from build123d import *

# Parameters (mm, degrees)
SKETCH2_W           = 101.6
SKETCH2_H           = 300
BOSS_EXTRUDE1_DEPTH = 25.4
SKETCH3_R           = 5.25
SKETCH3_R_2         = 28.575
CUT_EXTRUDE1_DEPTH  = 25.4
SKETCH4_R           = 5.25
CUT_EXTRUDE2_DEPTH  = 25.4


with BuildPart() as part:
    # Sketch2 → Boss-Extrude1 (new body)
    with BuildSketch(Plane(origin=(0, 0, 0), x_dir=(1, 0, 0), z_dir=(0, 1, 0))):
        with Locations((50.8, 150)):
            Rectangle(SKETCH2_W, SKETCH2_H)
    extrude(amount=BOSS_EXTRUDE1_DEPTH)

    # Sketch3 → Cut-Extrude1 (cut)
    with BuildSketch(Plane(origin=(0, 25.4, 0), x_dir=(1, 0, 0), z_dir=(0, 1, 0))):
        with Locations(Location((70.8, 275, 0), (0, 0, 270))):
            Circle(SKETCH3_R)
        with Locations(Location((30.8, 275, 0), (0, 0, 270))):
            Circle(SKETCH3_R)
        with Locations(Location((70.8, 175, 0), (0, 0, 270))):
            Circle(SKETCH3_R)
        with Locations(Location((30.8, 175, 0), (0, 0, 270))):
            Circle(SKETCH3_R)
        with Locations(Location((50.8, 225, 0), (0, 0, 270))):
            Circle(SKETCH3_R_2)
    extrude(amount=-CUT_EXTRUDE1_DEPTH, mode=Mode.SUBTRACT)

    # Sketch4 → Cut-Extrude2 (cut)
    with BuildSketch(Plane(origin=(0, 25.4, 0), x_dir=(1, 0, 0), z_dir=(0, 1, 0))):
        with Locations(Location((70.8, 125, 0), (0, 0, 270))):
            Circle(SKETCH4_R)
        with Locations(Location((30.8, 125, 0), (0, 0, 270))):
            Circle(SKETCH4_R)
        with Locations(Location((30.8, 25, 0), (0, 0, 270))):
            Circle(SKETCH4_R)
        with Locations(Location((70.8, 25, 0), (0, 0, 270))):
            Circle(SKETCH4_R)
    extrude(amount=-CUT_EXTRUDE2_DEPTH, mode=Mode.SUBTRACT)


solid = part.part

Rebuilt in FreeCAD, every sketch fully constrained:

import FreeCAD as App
import Part
import Sketcher

V = App.Vector
Q = App.Units.Quantity

doc = App.newDocument("Part")
body = doc.addObject("PartDesign::Body", "Body")

sketch1 = body.newObject("Sketcher::SketchObject", "Sketch")
sketch1.AttachmentSupport = (doc.getObject("XZ_Plane"), [""])
sketch1.MapMode = "FlatFace"
sketch1.addGeometry([
    Part.LineSegment(V(0, -300, 0), V(0, 0, 0)),
    Part.LineSegment(V(0, 0, 0), V(102, 0, 0)),
    Part.LineSegment(V(102, 0, 0), V(102, -300, 0)),
    Part.LineSegment(V(102, -300, 0), V(0, -300, 0)),
], False)
sketch1.addConstraint([
    Sketcher.Constraint("Coincident", 0, 2, 1, 1),
    Sketcher.Constraint("Coincident", 1, 2, 2, 1),
    Sketcher.Constraint("Coincident", 2, 2, 3, 1),
    Sketcher.Constraint("Coincident", 3, 2, 0, 1),
    Sketcher.Constraint("Vertical", 0),
    Sketcher.Constraint("Horizontal", 1),
    Sketcher.Constraint("Vertical", 2),
    Sketcher.Constraint("Horizontal", 3),
    Sketcher.Constraint("Coincident", 0, 2, -1, 1),
    Sketcher.Constraint("DistanceX", 1, 1, 1, 2, Q("4 in")),
    Sketcher.Constraint("DistanceY", 0, 1, 0, 2, Q("300 mm")),
])
pad1 = body.newObject("PartDesign::Pad", "Pad")
pad1.Profile = sketch1
pad1.Length = Q("1 in")
pad1.Reversed = True

sketch2 = body.newObject("Sketcher::SketchObject", "Sketch001")
sketch2.AttachmentSupport = (doc.getObject("XZ_Plane"), [""])
sketch2.MapMode = "FlatFace"
sketch2.AttachmentOffset = App.Placement(V(0, 0, -1 * 25.4), App.Rotation())
sketch2.addGeometry([
    Part.Circle(V(71, -275, 0), V(0, 0, 1), 5),
    Part.Circle(V(31, -275, 0), V(0, 0, 1), 5),
    Part.Circle(V(71, -175, 0), V(0, 0, 1), 5),
    Part.Circle(V(31, -175, 0), V(0, 0, 1), 5),
    Part.Circle(V(51, -225, 0), V(0, 0, 1), 29),
], False)
sketch2.addConstraint([
    Sketcher.Constraint("Equal", 0, 1),
    Sketcher.Constraint("Equal", 1, 2),
    Sketcher.Constraint("Equal", 2, 3),
    Sketcher.Constraint("Horizontal", 0, 3, 1, 3),
    Sketcher.Constraint("Horizontal", 2, 3, 3, 3),
    Sketcher.Constraint("Vertical", 0, 3, 2, 3),
    Sketcher.Constraint("Vertical", 1, 3, 3, 3),
    Sketcher.Constraint("Diameter", 4, Q("2.25 in")),
    Sketcher.Constraint("DistanceX", -1, 1, 4, 3, Q("2 in")),
    Sketcher.Constraint("Diameter", 0, Q("10.5 mm")),
    Sketcher.Constraint("DistanceX", -1, 1, 0, 3, Q("70.8 mm")),
    Sketcher.Constraint("DistanceY", 0, 3, -1, 1, Q("275 mm")),
    Sketcher.Constraint("DistanceX", -1, 1, 1, 3, Q("30.8 mm")),
    Sketcher.Constraint("DistanceY", 2, 3, -1, 1, Q("175 mm")),
    Sketcher.Constraint("DistanceY", 4, 3, -1, 1, Q("225 mm")),
])
pocket1 = body.newObject("PartDesign::Pocket", "Pocket")
pocket1.Profile = sketch2
pocket1.Length = Q("1 in")
pocket1.Reversed = True

sketch3 = body.newObject("Sketcher::SketchObject", "Sketch002")
sketch3.AttachmentSupport = (doc.getObject("XZ_Plane"), [""])
sketch3.MapMode = "FlatFace"
sketch3.AttachmentOffset = App.Placement(V(0, 0, -1 * 25.4), App.Rotation())
sketch3.addGeometry([
    Part.Circle(V(71, -125, 0), V(0, 0, 1), 5),
    Part.Circle(V(31, -125, 0), V(0, 0, 1), 5),
    Part.Circle(V(31, -25, 0), V(0, 0, 1), 5),
    Part.Circle(V(71, -25, 0), V(0, 0, 1), 5),
], False)
sketch3.addConstraint([
    Sketcher.Constraint("Equal", 0, 1),
    Sketcher.Constraint("Equal", 1, 2),
    Sketcher.Constraint("Equal", 2, 3),
    Sketcher.Constraint("Horizontal", 0, 3, 1, 3),
    Sketcher.Constraint("Horizontal", 2, 3, 3, 3),
    Sketcher.Constraint("Vertical", 1, 3, 2, 3),
    Sketcher.Constraint("Vertical", 0, 3, 3, 3),
    Sketcher.Constraint("Diameter", 0, Q("10.5 mm")),
    Sketcher.Constraint("DistanceX", -1, 1, 0, 3, Q("70.8 mm")),
    Sketcher.Constraint("DistanceY", 0, 3, -1, 1, Q("125 mm")),
    Sketcher.Constraint("DistanceX", -1, 1, 1, 3, Q("30.8 mm")),
    Sketcher.Constraint("DistanceY", 2, 3, -1, 1, Q("25 mm")),
])
pocket2 = body.newObject("PartDesign::Pocket", "Pocket001")
pocket2.Profile = sketch3
pocket2.Length = Q("1 in")
pocket2.Reversed = True

doc.recompute()
